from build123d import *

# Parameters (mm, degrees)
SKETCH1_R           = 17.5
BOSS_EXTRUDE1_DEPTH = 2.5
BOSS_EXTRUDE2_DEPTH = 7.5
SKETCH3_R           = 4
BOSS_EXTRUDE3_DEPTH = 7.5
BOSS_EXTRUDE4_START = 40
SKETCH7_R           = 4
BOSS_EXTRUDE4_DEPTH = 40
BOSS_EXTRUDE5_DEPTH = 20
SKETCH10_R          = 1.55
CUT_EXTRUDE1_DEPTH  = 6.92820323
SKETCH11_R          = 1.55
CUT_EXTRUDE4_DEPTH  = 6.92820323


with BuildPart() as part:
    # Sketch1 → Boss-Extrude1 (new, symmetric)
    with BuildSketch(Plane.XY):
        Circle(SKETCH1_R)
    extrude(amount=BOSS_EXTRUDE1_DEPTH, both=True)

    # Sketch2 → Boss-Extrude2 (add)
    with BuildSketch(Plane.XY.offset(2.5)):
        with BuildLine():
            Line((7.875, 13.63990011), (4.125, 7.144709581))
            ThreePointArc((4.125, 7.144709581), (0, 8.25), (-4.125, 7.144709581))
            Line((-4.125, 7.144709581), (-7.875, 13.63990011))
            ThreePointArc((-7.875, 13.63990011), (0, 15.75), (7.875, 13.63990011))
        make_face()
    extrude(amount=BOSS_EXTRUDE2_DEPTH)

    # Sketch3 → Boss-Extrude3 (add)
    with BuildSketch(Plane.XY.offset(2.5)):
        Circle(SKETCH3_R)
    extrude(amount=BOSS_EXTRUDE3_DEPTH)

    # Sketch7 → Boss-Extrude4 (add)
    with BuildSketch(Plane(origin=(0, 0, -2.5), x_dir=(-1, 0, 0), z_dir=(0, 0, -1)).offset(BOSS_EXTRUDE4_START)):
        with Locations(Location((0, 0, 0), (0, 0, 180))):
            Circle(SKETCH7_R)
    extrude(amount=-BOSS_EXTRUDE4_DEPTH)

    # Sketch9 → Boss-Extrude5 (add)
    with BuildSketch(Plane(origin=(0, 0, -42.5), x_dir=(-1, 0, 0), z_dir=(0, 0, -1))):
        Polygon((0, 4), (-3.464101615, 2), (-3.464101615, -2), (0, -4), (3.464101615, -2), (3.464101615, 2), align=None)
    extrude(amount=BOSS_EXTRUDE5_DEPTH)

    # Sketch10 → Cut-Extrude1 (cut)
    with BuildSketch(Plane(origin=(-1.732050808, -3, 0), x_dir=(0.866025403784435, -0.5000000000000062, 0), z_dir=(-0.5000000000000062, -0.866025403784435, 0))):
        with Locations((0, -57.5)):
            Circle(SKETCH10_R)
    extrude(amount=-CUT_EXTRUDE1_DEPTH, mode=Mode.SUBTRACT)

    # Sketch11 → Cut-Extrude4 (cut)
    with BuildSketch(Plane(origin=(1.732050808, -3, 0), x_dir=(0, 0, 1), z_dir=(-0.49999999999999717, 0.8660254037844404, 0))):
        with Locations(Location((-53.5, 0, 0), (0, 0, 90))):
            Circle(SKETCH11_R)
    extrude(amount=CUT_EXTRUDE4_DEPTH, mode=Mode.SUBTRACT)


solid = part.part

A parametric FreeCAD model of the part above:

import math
import FreeCAD as App
import Part
import Sketcher
Q = App.Units.Quantity

doc = App.newDocument("Part")
params = doc.addObject("Spreadsheet::Sheet", "Params")
for row, (alias, value) in enumerate([
    ("sketch1_diameter", "35 mm"),
    ("pad1_length", "5 mm"),
    ("sketch2_radius", "15.75 mm"),
    ("sketch2_radius2", "8.25 mm"),
    ("pad2_length", "7.5 mm"),
    ("sketch3_diameter", "8 mm"),
    ("pad3_length", "7.5 mm"),
    ("sketch4_diameter", "8 mm"),
    ("pad4_length", "40 mm"),
    ("sketch5_height", "4 mm"),
    ("sketch5_length", "4 mm"),
    ("pad5_length", "20 mm"),
    ("sketch6_diameter", "3.1 mm"),
    ("pocket1_length", "6.928203 mm"),
    ("sketch7_diameter", "3.1 mm"),
    ("pocket2_length", "6.928203 mm"),
], start=1):
    params.set(f"A{row}", alias)
    params.set(f"B{row}", "=" + value)
    params.setAlias(f"B{row}", alias)

body = doc.addObject("PartDesign::Body", "Body")

# Sketch on XY plane
sketch1 = doc.addObject("Sketcher::SketchObject", "Sketch")
body.addObject(sketch1)
sketch1.AttachmentSupport = (doc.XY_Plane, [""])
sketch1.MapMode = "FlatFace"
sketch1.addGeometry(Part.Circle(App.Vector(0, 0, 0), App.Vector(0, 0, 1), 18), False)
sketch1.addConstraint([
    Sketcher.Constraint("Coincident", 0, 3, -1, 1),
    Sketcher.Constraint("Diameter", 0, Q("35 mm")),
])
sketch1.setExpression("Constraints[1]", "Params.sketch1_diameter")
pad1 = doc.addObject("PartDesign::Pad", "Pad")
body.addObject(pad1)
pad1.Profile = sketch1
pad1.setExpression("Length", "Params.pad1_length")
pad1.Midplane = True

# Sketch on XY plane
sketch2 = doc.addObject("Sketcher::SketchObject", "Sketch001")
body.addObject(sketch2)
sketch2.AttachmentSupport = (doc.XY_Plane, [""])
sketch2.MapMode = "FlatFace"
sketch2.AttachmentOffset = App.Placement(App.Vector(0, 0, 2.5), App.Rotation())
sketch2.addGeometry([
    Part.LineSegment(App.Vector(4, 7, 0), App.Vector(8, 14, 0)),
    Part.ArcOfCircle(Part.Circle(App.Vector(0, 0, 0), App.Vector(0, 0, 1), 16), math.radians(60), math.radians(120)),
    Part.LineSegment(App.Vector(-8, 14, 0), App.Vector(-4, 7, 0)),
    Part.ArcOfCircle(Part.Circle(App.Vector(0, 0, 0), App.Vector(0, 0, 1), 8), math.radians(60), math.radians(120)),
], False)
sketch2.addConstraint([
    Sketcher.Constraint("Coincident", 0, 2, 1, 1),
    Sketcher.Constraint("Coincident", 1, 2, 2, 1),
    Sketcher.Constraint("Coincident", 2, 2, 3, 2),
    Sketcher.Constraint("Coincident", 3, 1, 0, 1),
    Sketcher.Constraint("Coincident", 1, 3, -1, 1),
    Sketcher.Constraint("Coincident", 3, 3, -1, 1),
    Sketcher.Constraint("Horizontal", 0, 2, 1, 2),
    Sketcher.Constraint("Horizontal", 2, 2, 3, 1),
    Sketcher.Constraint("Angle", 0, Q("60 deg")),
    Sketcher.Constraint("Radius", 1, Q("15.75 mm")),
    Sketcher.Constraint("Radius", 3, Q("8.25 mm")),
    Sketcher.Constraint("DistanceX", 2, 2, 0, 2, Q("12 mm")),
])
sketch2.setExpression("Constraints[9]", "Params.sketch2_radius")
sketch2.setExpression("Constraints[10]", "Params.sketch2_radius2")
pad2 = doc.addObject("PartDesign::Pad", "Pad001")
body.addObject(pad2)
pad2.Profile = sketch2
pad2.setExpression("Length", "Params.pad2_length")

# Sketch on XY plane
sketch3 = doc.addObject("Sketcher::SketchObject", "Sketch002")
body.addObject(sketch3)
sketch3.AttachmentSupport = (doc.XY_Plane, [""])
sketch3.MapMode = "FlatFace"
sketch3.AttachmentOffset = App.Placement(App.Vector(0, 0, 2.5), App.Rotation())
sketch3.addGeometry(Part.Circle(App.Vector(0, 0, 0), App.Vector(0, 0, 1), 4), False)
sketch3.addConstraint([
    Sketcher.Constraint("Coincident", 0, 3, -1, 1),
    Sketcher.Constraint("Diameter", 0, Q("8 mm")),
])
sketch3.setExpression("Constraints[1]", "Params.sketch3_diameter")
pad3 = doc.addObject("PartDesign::Pad", "Pad002")
body.addObject(pad3)
pad3.Profile = sketch3
pad3.setExpression("Length", "Params.pad3_length")

# Sketch on XY plane
sketch4 = doc.addObject("Sketcher::SketchObject", "Sketch003")
body.addObject(sketch4)
sketch4.AttachmentSupport = (doc.XY_Plane, [""])
sketch4.MapMode = "FlatFace"
sketch4.AttachmentOffset = App.Placement(App.Vector(0, 0, -42.5), App.Rotation())
sketch4.addGeometry(Part.Circle(App.Vector(0, 0, 0), App.Vector(0, 0, 1), 4), False)
sketch4.addConstraint([
    Sketcher.Constraint("Coincident", 0, 3, -1, 1),
    Sketcher.Constraint("Diameter", 0, Q("8 mm")),
])
sketch4.setExpression("Constraints[1]", "Params.sketch4_diameter")
pad4 = doc.addObject("PartDesign::Pad", "Pad003")
body.addObject(pad4)
pad4.Profile = sketch4
pad4.setExpression("Length", "Params.pad4_length")

# Sketch on XY plane
sketch5 = doc.addObject("Sketcher::SketchObject", "Sketch004")
body.addObject(sketch5)
sketch5.AttachmentSupport = (doc.XY_Plane, [""])
sketch5.MapMode = "FlatFace"
sketch5.AttachmentOffset = App.Placement(App.Vector(0, 0, -42.5), App.Rotation())
sketch5.addGeometry([
    Part.LineSegment(App.Vector(0, 4, 0), App.Vector(3.5, 2, 0)),  # 0
    Part.LineSegment(App.Vector(3.5, 2, 0), App.Vector(3.5, -2, 0)),  # 1
    Part.LineSegment(App.Vector(3.5, -2, 0), App.Vector(0, -4, 0)),  # 2
    Part.LineSegment(App.Vector(0, -4, 0), App.Vector(-3.5, -2, 0)),  # 3
    Part.LineSegment(App.Vector(-3.5, -2, 0), App.Vector(-3.5, 2, 0)),  # 4
    Part.LineSegment(App.Vector(-3.5, 2, 0), App.Vector(0, 4, 0)),  # 5
], False)
sketch5.addConstraint([
    Sketcher.Constraint("Coincident", 0, 2, 1, 1),
    Sketcher.Constraint("Coincident", 1, 2, 2, 1),
    Sketcher.Constraint("Coincident", 2, 2, 3, 1),
    Sketcher.Constraint("Coincident", 3, 2, 4, 1),
    Sketcher.Constraint("Coincident", 4, 2, 5, 1),
    Sketcher.Constraint("Coincident", 5, 2, 0, 1),
    Sketcher.Constraint("Vertical", 1),
    Sketcher.Constraint("Vertical", 4),
    Sketcher.Constraint("Symmetric", 0, 2, 3, 2, -1, 1),
    Sketcher.Constraint("Symmetric", 2, 2, 5, 2, -1, 1),
    Sketcher.Constraint("PointOnObject", 2, 2, -2),
    Sketcher.Constraint("Parallel", 2, 5),
    Sketcher.Constraint("Horizontal", 1, 2, 3, 2),
    Sketcher.Constraint("DistanceY", 1, 2, 1, 1, Q("4 mm")),
    Sketcher.Constraint("Angle", 0, Q("-30 deg")),
    Sketcher.Constraint("Distance", 0, Q("4 mm")),
])
sketch5.setExpression("Constraints[13]", "Params.sketch5_height")
sketch5.setExpression("Constraints[15]", "Params.sketch5_length")
pad5 = doc.addObject("PartDesign::Pad", "Pad004")
body.addObject(pad5)
pad5.Profile = sketch5
pad5.setExpression("Length", "Params.pad5_length")
pad5.Reversed = True

# Sketch on an angled plane
sketch6 = doc.addObject("Sketcher::SketchObject", "Sketch005")
body.addObject(sketch6)
sketch6.Placement = App.Placement(App.Vector(-1.732051, -3, 0), App.Rotation(App.Vector(0.866025404, -0.5, 0), App.Vector(0, 0, 1), App.Vector(-0.5, -0.866025404, 0), "ZXY"))
sketch6.addGeometry(Part.Circle(App.Vector(0, -57.5, 0), App.Vector(0, 0, 1), 1.6), False)
sketch6.addConstraint([
    Sketcher.Constraint("PointOnObject", 0, 3, -2),
    Sketcher.Constraint("Diameter", 0, Q("3.1 mm")),
    Sketcher.Constraint("DistanceY", 0, 3, -1, 1, Q("57.5 mm")),
])
sketch6.setExpression("Constraints[1]", "Params.sketch6_diameter")
pocket1 = doc.addObject("PartDesign::Pocket", "Pocket")
body.addObject(pocket1)
pocket1.Profile = sketch6
pocket1.setExpression("Length", "Params.pocket1_length")

# Sketch on an angled plane
sketch7 = doc.addObject("Sketcher::SketchObject", "Sketch006")
body.addObject(sketch7)
sketch7.Placement = App.Placement(App.Vector(1.732051, -3, 0), App.Rotation(App.Vector(0, 0, 1), App.Vector(0.866025404, 0.5, 0), App.Vector(-0.5, 0.866025404, 0), "ZXY"))
sketch7.addGeometry(Part.Circle(App.Vector(-53.5, 0, 0), App.Vector(0, 0, 1), 1.6), False)
sketch7.addConstraint([
    Sketcher.Constraint("PointOnObject", 0, 3, -1),
    Sketcher.Constraint("Diameter", 0, Q("3.1 mm")),
    Sketcher.Constraint("DistanceX", 0, 3, -1, 1, Q("53.5 mm")),
])
sketch7.setExpression("Constraints[1]", "Params.sketch7_diameter")
pocket2 = doc.addObject("PartDesign::Pocket", "Pocket001")
body.addObject(pocket2)
pocket2.Profile = sketch7
pocket2.setExpression("Length", "Params.pocket2_length")
pocket2.Reversed = True

doc.recompute()
